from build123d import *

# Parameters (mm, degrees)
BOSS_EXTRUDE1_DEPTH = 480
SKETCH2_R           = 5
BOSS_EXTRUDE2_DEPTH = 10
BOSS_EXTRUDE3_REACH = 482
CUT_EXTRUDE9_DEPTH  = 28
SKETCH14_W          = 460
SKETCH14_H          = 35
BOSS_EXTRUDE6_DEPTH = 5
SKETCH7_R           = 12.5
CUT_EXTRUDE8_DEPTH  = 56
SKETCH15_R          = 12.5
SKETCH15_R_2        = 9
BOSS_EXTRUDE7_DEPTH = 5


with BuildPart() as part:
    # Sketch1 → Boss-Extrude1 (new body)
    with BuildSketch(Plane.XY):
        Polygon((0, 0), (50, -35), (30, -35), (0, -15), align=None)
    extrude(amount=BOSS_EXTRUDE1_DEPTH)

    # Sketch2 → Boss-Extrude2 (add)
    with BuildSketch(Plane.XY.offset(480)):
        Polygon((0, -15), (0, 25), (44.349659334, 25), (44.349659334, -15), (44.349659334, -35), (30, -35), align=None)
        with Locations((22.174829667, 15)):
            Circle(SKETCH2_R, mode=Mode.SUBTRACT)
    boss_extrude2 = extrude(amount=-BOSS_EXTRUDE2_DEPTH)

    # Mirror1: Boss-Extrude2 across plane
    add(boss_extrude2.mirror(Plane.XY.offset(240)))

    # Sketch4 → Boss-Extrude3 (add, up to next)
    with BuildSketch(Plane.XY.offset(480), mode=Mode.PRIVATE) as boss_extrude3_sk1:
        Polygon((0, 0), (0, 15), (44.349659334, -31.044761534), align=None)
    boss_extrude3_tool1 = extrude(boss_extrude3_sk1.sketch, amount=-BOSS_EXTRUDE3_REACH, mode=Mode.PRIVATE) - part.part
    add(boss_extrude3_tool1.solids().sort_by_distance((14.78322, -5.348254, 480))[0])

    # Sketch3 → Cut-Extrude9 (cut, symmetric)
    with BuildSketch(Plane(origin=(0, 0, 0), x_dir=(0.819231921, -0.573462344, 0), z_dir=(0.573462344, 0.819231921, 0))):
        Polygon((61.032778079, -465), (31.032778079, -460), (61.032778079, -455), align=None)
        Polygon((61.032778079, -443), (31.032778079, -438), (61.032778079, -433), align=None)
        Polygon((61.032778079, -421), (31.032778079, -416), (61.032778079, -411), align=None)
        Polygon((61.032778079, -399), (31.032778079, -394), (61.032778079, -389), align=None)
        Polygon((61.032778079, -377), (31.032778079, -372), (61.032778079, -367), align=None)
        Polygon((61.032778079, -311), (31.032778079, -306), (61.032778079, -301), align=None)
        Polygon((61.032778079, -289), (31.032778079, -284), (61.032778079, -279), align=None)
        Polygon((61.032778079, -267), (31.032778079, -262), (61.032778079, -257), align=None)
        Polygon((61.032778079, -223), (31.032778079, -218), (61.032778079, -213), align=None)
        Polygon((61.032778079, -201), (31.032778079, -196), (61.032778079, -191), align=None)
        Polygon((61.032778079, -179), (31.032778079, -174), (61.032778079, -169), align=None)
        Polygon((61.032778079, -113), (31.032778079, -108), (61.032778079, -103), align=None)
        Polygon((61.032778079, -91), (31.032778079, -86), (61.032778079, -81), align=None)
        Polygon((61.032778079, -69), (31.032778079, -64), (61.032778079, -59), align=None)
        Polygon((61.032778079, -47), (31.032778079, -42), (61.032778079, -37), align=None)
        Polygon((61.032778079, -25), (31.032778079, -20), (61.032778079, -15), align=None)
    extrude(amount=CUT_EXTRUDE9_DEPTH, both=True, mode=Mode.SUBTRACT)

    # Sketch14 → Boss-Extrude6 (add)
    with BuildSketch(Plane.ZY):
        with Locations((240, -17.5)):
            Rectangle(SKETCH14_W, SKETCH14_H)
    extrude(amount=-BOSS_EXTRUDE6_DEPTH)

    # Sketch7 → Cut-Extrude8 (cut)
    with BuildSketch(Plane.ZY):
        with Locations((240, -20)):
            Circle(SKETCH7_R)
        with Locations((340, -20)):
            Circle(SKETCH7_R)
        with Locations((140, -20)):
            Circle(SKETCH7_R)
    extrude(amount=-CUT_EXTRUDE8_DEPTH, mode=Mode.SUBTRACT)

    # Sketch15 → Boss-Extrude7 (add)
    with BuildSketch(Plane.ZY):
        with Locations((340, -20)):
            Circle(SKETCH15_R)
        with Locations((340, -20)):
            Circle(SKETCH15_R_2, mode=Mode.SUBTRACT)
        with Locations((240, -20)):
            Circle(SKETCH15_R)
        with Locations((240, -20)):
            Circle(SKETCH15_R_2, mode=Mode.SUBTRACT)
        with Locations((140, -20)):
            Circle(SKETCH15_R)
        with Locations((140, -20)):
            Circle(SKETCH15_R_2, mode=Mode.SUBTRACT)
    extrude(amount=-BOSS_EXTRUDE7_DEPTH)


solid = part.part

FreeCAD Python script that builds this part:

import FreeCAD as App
import Part
import Sketcher
from FreeCAD import Vector


def add_polygon(sketch, points):
    """Adds a closed chain of lines whose ends are joined by coincident constraints."""
    first, n = sketch.GeometryCount, len(points)
    for a, b in zip(points, points[1:] + points[:1]):
        sketch.addGeometry(Part.LineSegment(App.Vector(*a, 0), App.Vector(*b, 0)), False)
    for i in range(n):
        sketch.addConstraint(Sketcher.Constraint("Coincident", first + i, 2, first + (i + 1) % n, 1))

doc = App.newDocument("Part")
body = doc.addObject("PartDesign::Body", "Body")

sketch1 = body.newObject("Sketcher::SketchObject", "Sketch")
sketch1.AttachmentSupport = (doc.getObject("XY_Plane"), [""])
sketch1.MapMode = "FlatFace"
add_polygon(sketch1, [(50, -35), (0, 0), (0, -15), (30, -35)])
sketch1.addConstraint([
    Sketcher.Constraint("Vertical", 1),
    Sketcher.Constraint("Horizontal", 3),
    Sketcher.Constraint("Coincident", 0, 2, -1, 1),
    Sketcher.Constraint("DistanceX", 3, 1, 3, 2, 20.0),
    Sketcher.Constraint("DistanceY", 1, 2, 1, 1, 15.0),
    Sketcher.Constraint("DistanceX", -1, 1, 2, 2, 30.0),
    Sketcher.Constraint("DistanceY", 2, 2, -1, 1, 35.0),
])
pad1 = body.newObject("PartDesign::Pad", "Pad")
pad1.Profile = sketch1
pad1.Length = 480

sketch2 = body.newObject("Sketcher::SketchObject", "Sketch001")
sketch2.AttachmentSupport = (doc.getObject("XY_Plane"), [""])
sketch2.MapMode = "FlatFace"
sketch2.AttachmentOffset = App.Placement(Vector(0, 0, 480), App.Rotation())
add_polygon(sketch2, [(0, 25), (0, -15), (30, -35), (44, -35), (44, 25)])
sketch2.addGeometry(Part.Circle(Vector(22, 15, 0), Vector(0, 0, 1), 5), False)
sketch2.addConstraint([
    Sketcher.Constraint("Vertical", 0),
    Sketcher.Constraint("Horizontal", 2),
    Sketcher.Constraint("Vertical", 3),
    Sketcher.Constraint("Horizontal", 4),
    Sketcher.Constraint("PointOnObject", 0, 2, -2),
    Sketcher.Constraint("Diameter", 5, 10.0),
    Sketcher.Constraint("DistanceY", 0, 2, 0, 1, 40.0),
    Sketcher.Constraint("DistanceY", 3, 1, 3, 2, 60.0),
    Sketcher.Constraint("DistanceY", -1, 1, 5, 3, 15.0),
    Sketcher.Constraint("DistanceY", 0, 2, -1, 1, 15.0),
    Sketcher.Constraint("DistanceX", -1, 1, 1, 2, 30.0),
    Sketcher.Constraint("DistanceX", 2, 1, 2, 2, 14.349659),
    Sketcher.Constraint("DistanceX", -1, 1, 5, 3, 22.17483),
])
pad2 = body.newObject("PartDesign::Pad", "Pad001")
pad2.Profile = sketch2
pad2.Length = 10
pad2.Reversed = True
doc.recompute()

datumplane = body.newObject("PartDesign::Plane", "DatumPlane")
datumplane.AttachmentSupport = (doc.getObject("XY_Plane"), [""])
datumplane.MapMode = "FlatFace"
datumplane.AttachmentOffset = App.Placement(Vector(0, 0, 240), App.Rotation())
mirrored = body.newObject("PartDesign::Mirrored", "Mirrored")
mirrored.Originals = [pad2]
mirrored.MirrorPlane = (datumplane, [""])
body.Tip = mirrored

sketch3 = body.newObject("Sketcher::SketchObject", "Sketch002")
sketch3.AttachmentSupport = (doc.getObject("XY_Plane"), [""])
sketch3.MapMode = "FlatFace"
sketch3.AttachmentOffset = App.Placement(Vector(0, 0, 480), App.Rotation())
add_polygon(sketch3, [(0, 15), (0, 0), (44, -31)])
sketch3.addConstraint([
    Sketcher.Constraint("Vertical", 0),
    Sketcher.Constraint("Coincident", 0, 2, -1, 1),
    Sketcher.Constraint("DistanceY", 0, 2, 0, 1, 15.0),
    Sketcher.Constraint("Distance", 1, 54.135658),
    Sketcher.Constraint("DistanceX", -1, 1, 1, 2, 44.349659),
])
pad3 = body.newObject("PartDesign::Pad", "Pad002")
pad3.Profile = sketch3
pad3.Length = 470
pad3.Reversed = True

sketch4 = body.newObject("Sketcher::SketchObject", "Sketch003")
sketch4.Placement = App.Placement(Vector(0, 0, 0), App.Rotation(Vector(0.819231921, -0.573462344, 0), Vector(0, 0, -1), Vector(0.573462344, 0.819231921, 0), "ZXY"))
add_polygon(sketch4, [(31, -460), (61, -465), (61, -455)])
add_polygon(sketch4, [(31, -438), (61, -443), (61, -433)])
add_polygon(sketch4, [(31, -416), (61, -421), (61, -411)])
add_polygon(sketch4, [(31, -394), (61, -399), (61, -389)])
add_polygon(sketch4, [(31, -372), (61, -377), (61, -367)])
add_polygon(sketch4, [(31, -306), (61, -311), (61, -301)])
add_polygon(sketch4, [(31, -284), (61, -289), (61, -279)])
add_polygon(sketch4, [(31, -262), (61, -267), (61, -257)])
add_polygon(sketch4, [(31, -218), (61, -223), (61, -213)])
add_polygon(sketch4, [(31, -196), (61, -201), (61, -191)])
add_polygon(sketch4, [(31, -174), (61, -179), (61, -169)])
add_polygon(sketch4, [(31, -108), (61, -113), (61, -103)])
add_polygon(sketch4, [(31, -86), (61, -91), (61, -81)])
add_polygon(sketch4, [(31, -64), (61, -69), (61, -59)])
add_polygon(sketch4, [(31, -42), (61, -47), (61, -37)])
add_polygon(sketch4, [(31, -20), (61, -25), (61, -15)])
sketch4.addConstraint([
    Sketcher.Constraint("Vertical", 1),
    Sketcher.Constraint("Vertical", 4),
    Sketcher.Constraint("Vertical", 7),
    Sketcher.Constraint("Vertical", 10),
    Sketcher.Constraint("Vertical", 13),
    Sketcher.Constraint("Vertical", 16),
    Sketcher.Constraint("Vertical", 19),
    Sketcher.Constraint("Vertical", 22),
    Sketcher.Constraint("Vertical", 25),
    Sketcher.Constraint("Vertical", 28),
    Sketcher.Constraint("Vertical", 31),
    Sketcher.Constraint("Vertical", 34),
    Sketcher.Constraint("Vertical", 37),
    Sketcher.Constraint("Vertical", 40),
    Sketcher.Constraint("Vertical", 43),
    Sketcher.Constraint("Vertical", 46),
    Sketcher.Constraint("Parallel", 0, 3),
    Sketcher.Constraint("Parallel", 2, 5),
    Sketcher.Constraint("Parallel", 3, 6),
    Sketcher.Constraint("Parallel", 5, 8),
    Sketcher.Constraint("Parallel", 6, 9),
    Sketcher.Constraint("Parallel", 8, 11),
    Sketcher.Constraint("Parallel", 9, 12),
    Sketcher.Constraint("Parallel", 11, 14),
    Sketcher.Constraint("Parallel", 12, 15),
    Sketcher.Constraint("Parallel", 14, 17),
    Sketcher.Constraint("Parallel", 15, 18),
    Sketcher.Constraint("Parallel", 17, 20),
    Sketcher.Constraint("Parallel", 18, 21),
    Sketcher.Constraint("Parallel", 20, 23),
    Sketcher.Constraint("Parallel", 21, 24),
    Sketcher.Constraint("Parallel", 23, 26),
    Sketcher.Constraint("Parallel", 24, 27),
    Sketcher.Constraint("Parallel", 26, 29),
    Sketcher.Constraint("Parallel", 27, 30),
    Sketcher.Constraint("Parallel", 29, 32),
    Sketcher.Constraint("Parallel", 30, 33),
    Sketcher.Constraint("Parallel", 32, 35),
    Sketcher.Constraint("Parallel", 33, 36),
    Sketcher.Constraint("Parallel", 35, 38),
    Sketcher.Constraint("Parallel", 36, 39),
    Sketcher.Constraint("Parallel", 38, 41),
    Sketcher.Constraint("Parallel", 39, 42),
    Sketcher.Constraint("Parallel", 41, 44),
    Sketcher.Constraint("Parallel", 42, 45),
    Sketcher.Constraint("Parallel", 44, 47),
    Sketcher.Constraint("Vertical", 1, 2, 3, 2),
    Sketcher.Constraint("Vertical", 2, 2, 5, 2),
    Sketcher.Constraint("Vertical", 4, 2, 6, 2),
    Sketcher.Constraint("Vertical", 5, 2, 8, 2),
    Sketcher.Constraint("Vertical", 7, 2, 9, 2),
    Sketcher.Constraint("Vertical", 8, 2, 11, 2),
    Sketcher.Constraint("Vertical", 10, 2, 12, 2),
    Sketcher.Constraint("Vertical", 11, 2, 14, 2),
    Sketcher.Constraint("Vertical", 13, 2, 15, 2),
    Sketcher.Constraint("Vertical", 14, 2, 17, 2),
    Sketcher.Constraint("Vertical", 16, 2, 18, 2),
    Sketcher.Constraint("Vertical", 17, 2, 20, 2),
    Sketcher.Constraint("Vertical", 19, 2, 21, 2),
    Sketcher.Constraint("Vertical", 20, 2, 23, 2),
    Sketcher.Constraint("Vertical", 22, 2, 24, 2),
    Sketcher.Constraint("Vertical", 23, 2, 26, 2),
    Sketcher.Constraint("Vertical", 25, 2, 27, 2),
    Sketcher.Constraint("Vertical", 26, 2, 29, 2),
    Sketcher.Constraint("Vertical", 28, 2, 30, 2),
    Sketcher.Constraint("Vertical", 29, 2, 32, 2),
    Sketcher.Constraint("Vertical", 31, 2, 33, 2),
    Sketcher.Constraint("Vertical", 32, 2, 35, 2),
    Sketcher.Constraint("Vertical", 34, 2, 36, 2),
    Sketcher.Constraint("Vertical", 35, 2, 38, 2),
    Sketcher.Constraint("Vertical", 37, 2, 39, 2),
    Sketcher.Constraint("Vertical", 38, 2, 41, 2),
    Sketcher.Constraint("Vertical", 40, 2, 42, 2),
    Sketcher.Constraint("Vertical", 41, 2, 44, 2),
    Sketcher.Constraint("Vertical", 43, 2, 45, 2),
    Sketcher.Constraint("Vertical", 44, 2, 47, 2),
    Sketcher.Constraint("Equal", 0, 2),
    Sketcher.Constraint("DistanceY", 1, 1, 1, 2, 10.0),
    Sketcher.Constraint("DistanceY", 0, 2, -1, 1, 465.0),
    Sketcher.Constraint("DistanceY", 3, 2, -1, 1, 443.0),
    Sketcher.Constraint("DistanceY", 6, 2, -1, 1, 421.0),
    Sketcher.Constraint("DistanceY", 9, 2, -1, 1, 399.0),
    Sketcher.Constraint("DistanceY", 12, 2, -1, 1, 377.0),
    Sketcher.Constraint("DistanceY", 15, 2, -1, 1, 311.0),
    Sketcher.Constraint("DistanceY", 18, 2, -1, 1, 289.0),
    Sketcher.Constraint("DistanceY", 21, 2, -1, 1, 267.0),
    Sketcher.Constraint("DistanceY", 24, 2, -1, 1, 223.0),
    Sketcher.Constraint("DistanceY", 27, 2, -1, 1, 201.0),
    Sketcher.Constraint("DistanceY", 30, 2, -1, 1, 179.0),
    Sketcher.Constraint("DistanceY", 33, 2, -1, 1, 113.0),
    Sketcher.Constraint("DistanceY", 36, 2, -1, 1, 91.0),
    Sketcher.Constraint("DistanceY", 39, 2, -1, 1, 69.0),
    Sketcher.Constraint("DistanceY", 42, 2, -1, 1, 47.0),
    Sketcher.Constraint("DistanceY", 45, 2, -1, 1, 25.0),
    Sketcher.Constraint("DistanceX", 2, 2, 0, 2, 30.0),
    Sketcher.Constraint("DistanceX", -1, 1, 0, 2, 61.032778),
])
pocket1 = body.newObject("PartDesign::Pocket", "Pocket")
pocket1.Profile = sketch4
pocket1.Length = 56
pocket1.Midplane = True

sketch5 = body.newObject("Sketcher::SketchObject", "Sketch004")
sketch5.AttachmentSupport = (doc.getObject("YZ_Plane"), [""])
sketch5.MapMode = "FlatFace"
add_polygon(sketch5, [(0, 10), (-35, 10), (-35, 470), (0, 470)])
sketch5.addConstraint([
    Sketcher.Constraint("Horizontal", 0),
    Sketcher.Constraint("Vertical", 1),
    Sketcher.Constraint("Horizontal", 2),
    Sketcher.Constraint("Vertical", 3),
    Sketcher.Constraint("PointOnObject", 2, 2, -2),
    Sketcher.Constraint("DistanceX", 0, 2, 0, 1, 35.0),
    Sketcher.Constraint("DistanceY", 1, 1, 1, 2, 460.0),
    Sketcher.Constraint("DistanceY", -1, 1, 0, 2, 10.0),
])
pad4 = body.newObject("PartDesign::Pad", "Pad003")
pad4.Profile = sketch5
pad4.Length = 5

sketch6 = body.newObject("Sketcher::SketchObject", "Sketch005")
sketch6.AttachmentSupport = (doc.getObject("YZ_Plane"), [""])
sketch6.MapMode = "FlatFace"
sketch6.addGeometry([
    Part.Circle(Vector(-20, 240, 0), Vector(0, 0, 1), 12),
    Part.Circle(Vector(-20, 340, 0), Vector(0, 0, 1), 12),
    Part.Circle(Vector(-20, 140, 0), Vector(0, 0, 1), 12),
], False)
sketch6.addConstraint([
    Sketcher.Constraint("Equal", 0, 1),
    Sketcher.Constraint("Equal", 1, 2),
    Sketcher.Constraint("Vertical", 0, 3, 1, 3),
    Sketcher.Constraint("Vertical", 1, 3, 2, 3),
    Sketcher.Constraint("Diameter", 0, 25.0),
    Sketcher.Constraint("DistanceX", 0, 3, -1, 1, 20.0),
    Sketcher.Constraint("DistanceY", -1, 1, 0, 3, 240.0),
    Sketcher.Constraint("DistanceY", -1, 1, 1, 3, 340.0),
    Sketcher.Constraint("DistanceY", -1, 1, 2, 3, 140.0),
])
pocket2 = body.newObject("PartDesign::Pocket", "Pocket001")
pocket2.Profile = sketch6
pocket2.Length = 56
pocket2.Reversed = True

sketch7 = body.newObject("Sketcher::SketchObject", "Sketch006")
sketch7.AttachmentSupport = (doc.getObject("YZ_Plane"), [""])
sketch7.MapMode = "FlatFace"
sketch7.addGeometry([
    Part.Circle(Vector(-20, 340, 0), Vector(0, 0, 1), 12),
    Part.Circle(Vector(-20, 340, 0), Vector(0, 0, 1), 9),
    Part.Circle(Vector(-20, 240, 0), Vector(0, 0, 1), 12),
    Part.Circle(Vector(-20, 240, 0), Vector(0, 0, 1), 9),
    Part.Circle(Vector(-20, 140, 0), Vector(0, 0, 1), 12),
    Part.Circle(Vector(-20, 140, 0), Vector(0, 0, 1), 9),
], False)
sketch7.addConstraint([
    Sketcher.Constraint("Coincident", 1, 3, 0, 3),
    Sketcher.Constraint("Coincident", 3, 3, 2, 3),
    Sketcher.Constraint("Coincident", 5, 3, 4, 3),
    Sketcher.Constraint("Equal", 0, 2),
    Sketcher.Constraint("Equal", 1, 3),
    Sketcher.Constraint("Equal", 2, 4),
    Sketcher.Constraint("Equal", 3, 5),
    Sketcher.Constraint("Vertical", 1, 3, 2, 3),
    Sketcher.Constraint("Vertical", 3, 3, 4, 3),
    Sketcher.Constraint("Diameter", 0, 25.0),
    Sketcher.Constraint("Diameter", 1, 18.0),
    Sketcher.Constraint("DistanceX", 0, 3, -1, 1, 20.0),
    Sketcher.Constraint("DistanceY", -1, 1, 0, 3, 340.0),
    Sketcher.Constraint("DistanceY", -1, 1, 2, 3, 240.0),
    Sketcher.Constraint("DistanceY", -1, 1, 4, 3, 140.0),
])
pad5 = body.newObject("PartDesign::Pad", "Pad004")
pad5.Profile = sketch7
pad5.Length = 5

doc.recompute()
